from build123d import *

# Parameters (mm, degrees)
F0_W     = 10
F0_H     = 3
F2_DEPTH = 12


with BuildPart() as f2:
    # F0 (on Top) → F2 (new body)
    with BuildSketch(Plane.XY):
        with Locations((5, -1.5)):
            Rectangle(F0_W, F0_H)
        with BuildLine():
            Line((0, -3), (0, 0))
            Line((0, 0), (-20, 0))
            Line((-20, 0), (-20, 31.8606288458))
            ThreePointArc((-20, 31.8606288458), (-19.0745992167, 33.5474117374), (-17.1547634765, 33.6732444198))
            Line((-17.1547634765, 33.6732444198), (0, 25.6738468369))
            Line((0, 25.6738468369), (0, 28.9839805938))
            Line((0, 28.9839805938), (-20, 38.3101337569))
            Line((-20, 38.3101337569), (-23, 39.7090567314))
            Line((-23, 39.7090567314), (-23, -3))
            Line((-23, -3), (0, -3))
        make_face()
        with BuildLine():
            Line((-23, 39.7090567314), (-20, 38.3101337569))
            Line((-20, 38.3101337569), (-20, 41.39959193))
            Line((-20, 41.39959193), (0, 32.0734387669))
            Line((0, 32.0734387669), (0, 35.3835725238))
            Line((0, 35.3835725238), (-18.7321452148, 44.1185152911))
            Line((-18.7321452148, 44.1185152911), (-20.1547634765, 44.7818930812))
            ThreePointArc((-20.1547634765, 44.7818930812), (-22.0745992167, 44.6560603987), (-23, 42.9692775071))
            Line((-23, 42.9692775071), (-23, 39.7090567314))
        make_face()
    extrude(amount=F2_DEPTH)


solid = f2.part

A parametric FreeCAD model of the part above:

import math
import FreeCAD as App
import Part
import Sketcher
from FreeCAD import Vector
Q = App.Units.Quantity

doc = App.newDocument("Part")
body = doc.addObject("PartDesign::Body", "Body")

sketch1 = doc.addObject("Sketcher::SketchObject", "Sketch")
body.addObject(sketch1)
sketch1.AttachmentSupport = (doc.XY_Plane, [""])
sketch1.MapMode = "FlatFace"
sketch1.addGeometry([
    Part.LineSegment(Vector(10, -3, 0), Vector(10, 0, 0)),
    Part.LineSegment(Vector(10, 0, 0), Vector(-20, 0, 0)),
    Part.LineSegment(Vector(-20, 0, 0), Vector(-20, 31.9, 0)),
    Part.ArcOfCircle(Part.Circle(Vector(-18, 31.9, 0), Vector(0, 0, 1), 2), math.radians(65), math.radians(180)),
    Part.LineSegment(Vector(-17.2, 33.7, 0), Vector(0, 25.7, 0)),
    Part.LineSegment(Vector(0, 25.7, 0), Vector(0, 29, 0)),
    Part.LineSegment(Vector(0, 29, 0), Vector(-20, 38.3, 0)),
    Part.LineSegment(Vector(-20, 38.3, 0), Vector(-20, 41.4, 0)),
    Part.LineSegment(Vector(-20, 41.4, 0), Vector(0, 32.1, 0)),
    Part.LineSegment(Vector(0, 32.1, 0), Vector(0, 35.4, 0)),
    Part.LineSegment(Vector(0, 35.4, 0), Vector(-18.7, 44.1, 0)),
    Part.LineSegment(Vector(-18.7, 44.1, 0), Vector(-20.2, 44.8, 0)),
    Part.ArcOfCircle(Part.Circle(Vector(-21, 43, 0), Vector(0, 0, 1), 2), math.radians(65), math.radians(180)),
    Part.LineSegment(Vector(-23, 43, 0), Vector(-23, -3, 0)),
    Part.LineSegment(Vector(-23, -3, 0), Vector(10, -3, 0)),
], False)
sketch1.addConstraint([
    Sketcher.Constraint("Coincident", 0, 2, 1, 1),
    Sketcher.Constraint("Coincident", 1, 2, 2, 1),
    Sketcher.Constraint("Tangent", 2, 2, 3, 2),
    Sketcher.Constraint("Tangent", 3, 1, 4, 1),
    Sketcher.Constraint("Coincident", 4, 2, 5, 1),
    Sketcher.Constraint("Coincident", 5, 2, 6, 1),
    Sketcher.Constraint("Coincident", 6, 2, 7, 1),
    Sketcher.Constraint("Coincident", 7, 2, 8, 1),
    Sketcher.Constraint("Coincident", 8, 2, 9, 1),
    Sketcher.Constraint("Coincident", 9, 2, 10, 1),
    Sketcher.Constraint("Coincident", 10, 2, 11, 1),
    Sketcher.Constraint("Tangent", 11, 2, 12, 1),
    Sketcher.Constraint("Tangent", 12, 2, 13, 1),
    Sketcher.Constraint("Coincident", 13, 2, 14, 1),
    Sketcher.Constraint("Coincident", 14, 2, 0, 1),
    Sketcher.Constraint("Vertical", 0),
    Sketcher.Constraint("Horizontal", 1),
    Sketcher.Constraint("Vertical", 2),
    Sketcher.Constraint("Vertical", 5),
    Sketcher.Constraint("Vertical", 7),
    Sketcher.Constraint("Vertical", 9),
    Sketcher.Constraint("Vertical", 13),
    Sketcher.Constraint("Horizontal", 14),
    Sketcher.Constraint("Equal", 3, 12),
    Sketcher.Constraint("PointOnObject", 0, 2, -1),
    Sketcher.Constraint("PointOnObject", 4, 2, -2),
    Sketcher.Constraint("PointOnObject", 8, 2, -2),
    Sketcher.Constraint("Parallel", 4, 6),
    Sketcher.Constraint("Parallel", 6, 8),
    Sketcher.Constraint("Parallel", 8, 10),
    Sketcher.Constraint("Parallel", 10, 11),
    Sketcher.Constraint("Vertical", 2, 2, 6, 2),
    Sketcher.Constraint("Equal", 5, 9),
    Sketcher.Constraint("Radius", 3, 2.0),
    Sketcher.Constraint("DistanceX", 1, 2, 1, 1, 30.0),
    Sketcher.Constraint("DistanceX", 14, 1, 14, 2, 33.0),
    Sketcher.Constraint("DistanceY", 0, 1, 0, 2, 3.0),
    Sketcher.Constraint("Angle", 4, Q("-25 deg")),
    Sketcher.Constraint("DistanceX", 3, 3, -1, 1, 18.0),
    Sketcher.Constraint("DistanceY", 2, 1, 2, 2, 31.860629),
    Sketcher.Constraint("DistanceY", 7, 1, 7, 2, 3.089458),
    Sketcher.Constraint("DistanceY", 7, 2, 11, 2, 3.382301),
    Sketcher.Constraint("DistanceY", 6, 2, 10, 2, 5.808382),
])
pad1 = doc.addObject("PartDesign::Pad", "Pad")
body.addObject(pad1)
pad1.Profile = sketch1
pad1.Length = 12

doc.recompute()
